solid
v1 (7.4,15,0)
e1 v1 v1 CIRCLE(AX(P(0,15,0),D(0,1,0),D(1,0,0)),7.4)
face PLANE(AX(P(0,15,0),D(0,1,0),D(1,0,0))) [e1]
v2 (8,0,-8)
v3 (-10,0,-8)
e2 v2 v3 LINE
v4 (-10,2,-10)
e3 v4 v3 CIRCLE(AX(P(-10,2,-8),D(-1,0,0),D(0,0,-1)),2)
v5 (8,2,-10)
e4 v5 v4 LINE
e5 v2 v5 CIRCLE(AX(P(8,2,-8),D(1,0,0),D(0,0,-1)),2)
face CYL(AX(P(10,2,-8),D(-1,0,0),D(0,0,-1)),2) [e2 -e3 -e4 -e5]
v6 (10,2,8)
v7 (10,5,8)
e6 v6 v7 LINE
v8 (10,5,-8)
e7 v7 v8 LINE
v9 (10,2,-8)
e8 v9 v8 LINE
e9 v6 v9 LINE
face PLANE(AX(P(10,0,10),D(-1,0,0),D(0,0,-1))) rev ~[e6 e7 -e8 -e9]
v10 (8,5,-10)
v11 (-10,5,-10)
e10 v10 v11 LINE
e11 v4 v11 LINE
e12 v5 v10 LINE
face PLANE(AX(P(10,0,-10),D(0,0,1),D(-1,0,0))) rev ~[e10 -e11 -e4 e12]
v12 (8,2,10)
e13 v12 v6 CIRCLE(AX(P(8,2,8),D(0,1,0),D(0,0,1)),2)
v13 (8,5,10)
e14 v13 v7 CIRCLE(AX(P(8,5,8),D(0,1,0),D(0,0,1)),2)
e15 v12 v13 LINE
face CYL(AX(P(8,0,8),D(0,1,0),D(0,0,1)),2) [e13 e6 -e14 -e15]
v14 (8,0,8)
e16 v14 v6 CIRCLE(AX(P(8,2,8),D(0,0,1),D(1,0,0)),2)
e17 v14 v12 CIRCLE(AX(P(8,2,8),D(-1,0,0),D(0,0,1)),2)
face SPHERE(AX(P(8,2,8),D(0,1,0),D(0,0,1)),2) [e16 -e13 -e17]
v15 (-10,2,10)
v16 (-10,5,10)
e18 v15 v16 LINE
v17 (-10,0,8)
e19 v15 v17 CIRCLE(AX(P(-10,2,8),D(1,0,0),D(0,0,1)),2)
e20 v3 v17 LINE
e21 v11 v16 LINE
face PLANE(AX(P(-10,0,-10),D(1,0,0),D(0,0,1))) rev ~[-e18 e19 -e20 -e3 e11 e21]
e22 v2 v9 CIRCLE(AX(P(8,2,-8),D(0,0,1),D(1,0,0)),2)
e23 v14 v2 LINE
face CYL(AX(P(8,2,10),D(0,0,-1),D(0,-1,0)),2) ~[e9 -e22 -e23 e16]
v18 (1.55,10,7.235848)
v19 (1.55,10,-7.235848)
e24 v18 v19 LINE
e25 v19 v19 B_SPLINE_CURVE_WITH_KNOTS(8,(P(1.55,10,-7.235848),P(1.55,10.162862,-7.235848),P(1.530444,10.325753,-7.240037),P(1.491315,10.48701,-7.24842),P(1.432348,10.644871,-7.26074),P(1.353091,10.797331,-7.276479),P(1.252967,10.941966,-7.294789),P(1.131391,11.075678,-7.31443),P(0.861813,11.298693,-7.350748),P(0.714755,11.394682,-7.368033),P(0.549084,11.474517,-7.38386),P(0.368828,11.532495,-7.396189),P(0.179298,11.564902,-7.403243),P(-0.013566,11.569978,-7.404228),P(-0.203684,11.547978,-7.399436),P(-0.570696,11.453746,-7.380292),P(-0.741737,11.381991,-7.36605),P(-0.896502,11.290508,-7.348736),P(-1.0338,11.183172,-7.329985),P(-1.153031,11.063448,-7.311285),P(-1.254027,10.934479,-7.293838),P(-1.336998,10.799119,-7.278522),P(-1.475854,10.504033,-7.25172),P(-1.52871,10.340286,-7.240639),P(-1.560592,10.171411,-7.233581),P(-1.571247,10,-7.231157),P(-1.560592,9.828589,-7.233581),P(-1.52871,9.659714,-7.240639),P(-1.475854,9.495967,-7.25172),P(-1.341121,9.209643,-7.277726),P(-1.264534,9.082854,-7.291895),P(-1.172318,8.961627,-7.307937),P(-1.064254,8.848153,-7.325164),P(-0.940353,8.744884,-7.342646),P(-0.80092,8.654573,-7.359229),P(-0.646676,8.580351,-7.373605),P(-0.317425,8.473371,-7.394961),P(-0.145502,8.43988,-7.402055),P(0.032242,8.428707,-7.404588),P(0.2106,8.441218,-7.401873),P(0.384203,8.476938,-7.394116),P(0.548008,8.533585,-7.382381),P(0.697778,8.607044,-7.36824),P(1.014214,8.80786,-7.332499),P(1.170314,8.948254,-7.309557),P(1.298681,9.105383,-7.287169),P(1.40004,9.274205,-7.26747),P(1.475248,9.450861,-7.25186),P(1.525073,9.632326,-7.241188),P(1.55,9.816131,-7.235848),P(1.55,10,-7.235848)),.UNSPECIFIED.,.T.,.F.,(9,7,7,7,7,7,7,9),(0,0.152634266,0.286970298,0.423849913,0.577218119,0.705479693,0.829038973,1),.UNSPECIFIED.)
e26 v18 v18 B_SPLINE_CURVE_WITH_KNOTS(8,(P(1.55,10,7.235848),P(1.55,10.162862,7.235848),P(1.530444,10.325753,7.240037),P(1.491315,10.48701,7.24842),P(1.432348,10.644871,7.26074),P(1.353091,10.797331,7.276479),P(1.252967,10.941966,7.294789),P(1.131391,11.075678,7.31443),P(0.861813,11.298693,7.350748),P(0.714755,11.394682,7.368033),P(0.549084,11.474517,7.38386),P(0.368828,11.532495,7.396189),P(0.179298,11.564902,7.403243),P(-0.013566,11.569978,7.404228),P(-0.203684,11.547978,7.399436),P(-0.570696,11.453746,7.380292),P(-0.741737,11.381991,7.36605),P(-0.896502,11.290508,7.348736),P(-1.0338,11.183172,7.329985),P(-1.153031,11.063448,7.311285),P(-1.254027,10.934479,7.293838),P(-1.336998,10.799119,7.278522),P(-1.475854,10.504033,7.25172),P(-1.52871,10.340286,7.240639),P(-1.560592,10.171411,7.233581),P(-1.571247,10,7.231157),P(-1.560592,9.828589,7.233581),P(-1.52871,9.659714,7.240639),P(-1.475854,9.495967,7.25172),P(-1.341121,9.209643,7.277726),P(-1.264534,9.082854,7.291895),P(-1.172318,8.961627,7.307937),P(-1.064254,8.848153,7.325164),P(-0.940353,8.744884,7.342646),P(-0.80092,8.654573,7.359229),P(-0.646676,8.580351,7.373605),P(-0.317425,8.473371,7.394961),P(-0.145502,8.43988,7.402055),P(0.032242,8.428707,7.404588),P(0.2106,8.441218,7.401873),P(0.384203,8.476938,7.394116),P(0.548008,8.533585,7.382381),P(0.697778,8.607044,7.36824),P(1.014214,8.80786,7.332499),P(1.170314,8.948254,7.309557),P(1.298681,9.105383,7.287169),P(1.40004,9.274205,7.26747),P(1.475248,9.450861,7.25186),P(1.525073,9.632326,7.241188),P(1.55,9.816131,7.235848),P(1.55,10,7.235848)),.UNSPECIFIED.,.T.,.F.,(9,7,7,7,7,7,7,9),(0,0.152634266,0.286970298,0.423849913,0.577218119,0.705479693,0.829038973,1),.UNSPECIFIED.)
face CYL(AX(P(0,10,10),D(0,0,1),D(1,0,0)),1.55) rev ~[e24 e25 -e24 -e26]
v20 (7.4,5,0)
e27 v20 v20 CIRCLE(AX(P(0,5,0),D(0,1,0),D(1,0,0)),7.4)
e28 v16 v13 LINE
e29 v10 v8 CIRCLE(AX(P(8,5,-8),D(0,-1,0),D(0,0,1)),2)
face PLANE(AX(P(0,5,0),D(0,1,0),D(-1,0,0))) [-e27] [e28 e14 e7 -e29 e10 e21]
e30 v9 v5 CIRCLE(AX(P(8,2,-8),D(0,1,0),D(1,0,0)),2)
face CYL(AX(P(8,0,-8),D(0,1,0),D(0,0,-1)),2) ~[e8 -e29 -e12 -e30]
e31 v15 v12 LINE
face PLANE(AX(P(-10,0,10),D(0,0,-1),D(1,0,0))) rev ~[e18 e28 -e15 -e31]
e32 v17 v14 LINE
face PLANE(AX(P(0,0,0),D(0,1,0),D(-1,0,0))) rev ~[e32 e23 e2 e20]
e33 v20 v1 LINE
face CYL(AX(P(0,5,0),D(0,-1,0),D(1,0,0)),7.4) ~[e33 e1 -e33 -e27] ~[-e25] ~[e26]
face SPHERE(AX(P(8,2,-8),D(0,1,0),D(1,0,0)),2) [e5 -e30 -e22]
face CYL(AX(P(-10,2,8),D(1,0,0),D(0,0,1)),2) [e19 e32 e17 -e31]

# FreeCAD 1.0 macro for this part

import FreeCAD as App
import Part
import Sketcher


def edges_at(feature, points):
    """Names of the edges that pass closest to the given points."""
    edges = feature.Shape.Edges
    near = lambda p: min(range(len(edges)), key=lambda i: edges[i].distToShape(Part.Vertex(*p))[0])
    return sorted({f"Edge{near(p) + 1}" for p in points})

doc = App.newDocument("Part")
body = doc.addObject("PartDesign::Body", "Body")

# Sketch on XZ plane
sketch1 = doc.addObject("Sketcher::SketchObject", "Sketch")
body.addObject(sketch1)
sketch1.AttachmentSupport = (doc.XZ_Plane, [""])
sketch1.MapMode = "FlatFace"
sketch1.addGeometry(Part.LineSegment(App.Vector(-10, -10, 0), App.Vector(-10, 10, 0)), False)
sketch1.addGeometry(Part.LineSegment(App.Vector(-10, 10, 0), App.Vector(10, 10, 0)), False)
sketch1.addGeometry(Part.LineSegment(App.Vector(10, 10, 0), App.Vector(10, -10, 0)), False)
sketch1.addGeometry(Part.LineSegment(App.Vector(10, -10, 0), App.Vector(-10, -10, 0)), False)
sketch1.addConstraint(Sketcher.Constraint("Coincident", 0, 2, 1, 1))
sketch1.addConstraint(Sketcher.Constraint("Coincident", 1, 2, 2, 1))
sketch1.addConstraint(Sketcher.Constraint("Coincident", 2, 2, 3, 1))
sketch1.addConstraint(Sketcher.Constraint("Coincident", 3, 2, 0, 1))
sketch1.addConstraint(Sketcher.Constraint("Vertical", 0))
sketch1.addConstraint(Sketcher.Constraint("Horizontal", 1))
sketch1.addConstraint(Sketcher.Constraint("Vertical", 2))
sketch1.addConstraint(Sketcher.Constraint("Horizontal", 3))
sketch1.addConstraint(Sketcher.Constraint("Symmetric", 0, 2, 2, 2, -1, 1))
sketch1.addConstraint(Sketcher.Constraint("Equal", 3, 0))
sketch1.addConstraint(Sketcher.Constraint("DistanceX", 1, 1, 1, 2, 20.0))
pad1 = doc.addObject("PartDesign::Pad", "Pad")
body.addObject(pad1)
pad1.Profile = sketch1
pad1.Length = 5
pad1.Reversed = True

# Sketch on XZ plane
sketch2 = doc.addObject("Sketcher::SketchObject", "Sketch001")
body.addObject(sketch2)
sketch2.AttachmentSupport = (doc.XZ_Plane, [""])
sketch2.MapMode = "FlatFace"
sketch2.AttachmentOffset = App.Placement(App.Vector(0, 0, -5), App.Rotation())
sketch2.addGeometry(Part.Circle(App.Vector(0, 0, 0), App.Vector(0, 0, 1), 7.4), False)
sketch2.addConstraint(Sketcher.Constraint("Coincident", 0, 3, -1, 1))
sketch2.addConstraint(Sketcher.Constraint("Diameter", 0, 14.8))
pad2 = doc.addObject("PartDesign::Pad", "Pad001")
body.addObject(pad2)
pad2.Profile = sketch2
pad2.Length = 10
pad2.Reversed = True

# Sketch on XY plane
sketch3 = doc.addObject("Sketcher::SketchObject", "Sketch002")
body.addObject(sketch3)
sketch3.AttachmentSupport = (doc.XY_Plane, [""])
sketch3.MapMode = "FlatFace"
sketch3.AttachmentOffset = App.Placement(App.Vector(0, 0, 10), App.Rotation())
sketch3.addGeometry(Part.Circle(App.Vector(0, 10, 0), App.Vector(0, 0, 1), 1.55), False)
sketch3.addConstraint(Sketcher.Constraint("PointOnObject", 0, 3, -2))
sketch3.addConstraint(Sketcher.Constraint("Diameter", 0, 3.1))
sketch3.addConstraint(Sketcher.Constraint("DistanceY", -1, 1, 0, 3, 10.0))
pocket1 = doc.addObject("PartDesign::Pocket", "Pocket")
body.addObject(pocket1)
pocket1.Profile = sketch3
pocket1.Type = "ThroughAll"
doc.recompute()

fillet = doc.addObject("PartDesign::Fillet", "Fillet")
body.addObject(fillet)
fillet.Base = (pocket1, edges_at(pocket1, [
    (10, 2.5, 10),
    (10, 2.5, -10),
    (0, 0, 10),
    (10, 0, 0),
    (0, 0, -10),
]))
fillet.Radius = 2

doc.recompute()
